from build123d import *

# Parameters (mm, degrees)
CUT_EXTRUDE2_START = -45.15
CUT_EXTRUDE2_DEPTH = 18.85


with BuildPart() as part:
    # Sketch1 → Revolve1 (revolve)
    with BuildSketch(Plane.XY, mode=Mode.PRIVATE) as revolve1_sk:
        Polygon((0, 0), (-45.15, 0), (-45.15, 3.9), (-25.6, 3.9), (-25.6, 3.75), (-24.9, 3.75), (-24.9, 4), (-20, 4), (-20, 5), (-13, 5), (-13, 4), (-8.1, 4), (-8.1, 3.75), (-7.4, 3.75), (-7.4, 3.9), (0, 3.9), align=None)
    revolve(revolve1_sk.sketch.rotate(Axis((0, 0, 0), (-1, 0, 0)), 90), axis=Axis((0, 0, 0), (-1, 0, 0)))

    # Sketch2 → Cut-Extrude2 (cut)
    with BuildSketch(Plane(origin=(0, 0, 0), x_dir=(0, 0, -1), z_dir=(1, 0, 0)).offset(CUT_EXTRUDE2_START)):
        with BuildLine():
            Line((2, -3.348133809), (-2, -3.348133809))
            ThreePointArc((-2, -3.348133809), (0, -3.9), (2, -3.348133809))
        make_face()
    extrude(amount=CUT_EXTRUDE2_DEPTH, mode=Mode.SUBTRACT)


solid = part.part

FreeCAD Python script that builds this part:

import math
import FreeCAD as App
import Part
import Sketcher

V = App.Vector

doc = App.newDocument("Part")
body = doc.addObject("PartDesign::Body", "Body")

# Sketch on XY plane
sketch1 = doc.addObject("Sketcher::SketchObject", "Sketch")
body.addObject(sketch1)
sketch1.AttachmentSupport = (doc.XY_Plane, [""])
sketch1.MapMode = "FlatFace"
sketch1.addGeometry([
    Part.LineSegment(V(-45.15, 0, 0), V(0, 0, 0)),  # 0
    Part.LineSegment(V(0, 0, 0), V(0, 3.9, 0)),  # 1
    Part.LineSegment(V(0, 3.9, 0), V(-7.4, 3.9, 0)),  # 2
    Part.LineSegment(V(-7.4, 3.9, 0), V(-7.4, 3.75, 0)),  # 3
    Part.LineSegment(V(-7.4, 3.75, 0), V(-8.1, 3.75, 0)),  # 4
    Part.LineSegment(V(-8.1, 3.75, 0), V(-8.1, 4, 0)),  # 5
    Part.LineSegment(V(-8.1, 4, 0), V(-13, 4, 0)),  # 6
    Part.LineSegment(V(-13, 4, 0), V(-13, 5, 0)),  # 7
    Part.LineSegment(V(-13, 5, 0), V(-20, 5, 0)),  # 8
    Part.LineSegment(V(-20, 5, 0), V(-20, 4, 0)),  # 9
    Part.LineSegment(V(-20, 4, 0), V(-24.9, 4, 0)),  # 10
    Part.LineSegment(V(-24.9, 4, 0), V(-24.9, 3.75, 0)),  # 11
    Part.LineSegment(V(-24.9, 3.75, 0), V(-25.6, 3.75, 0)),  # 12
    Part.LineSegment(V(-25.6, 3.75, 0), V(-25.6, 3.9, 0)),  # 13
    Part.LineSegment(V(-25.6, 3.9, 0), V(-45.15, 3.9, 0)),  # 14
    Part.LineSegment(V(-45.15, 3.9, 0), V(-45.15, 0, 0)),  # 15
], False)
sketch1.addConstraint([
    Sketcher.Constraint("Coincident", 0, 2, 1, 1),
    Sketcher.Constraint("Coincident", 1, 2, 2, 1),
    Sketcher.Constraint("Coincident", 2, 2, 3, 1),
    Sketcher.Constraint("Coincident", 3, 2, 4, 1),
    Sketcher.Constraint("Coincident", 4, 2, 5, 1),
    Sketcher.Constraint("Coincident", 5, 2, 6, 1),
    Sketcher.Constraint("Coincident", 6, 2, 7, 1),
    Sketcher.Constraint("Coincident", 7, 2, 8, 1),
    Sketcher.Constraint("Coincident", 8, 2, 9, 1),
    Sketcher.Constraint("Coincident", 9, 2, 10, 1),
    Sketcher.Constraint("Coincident", 10, 2, 11, 1),
    Sketcher.Constraint("Coincident", 11, 2, 12, 1),
    Sketcher.Constraint("Coincident", 12, 2, 13, 1),
    Sketcher.Constraint("Coincident", 13, 2, 14, 1),
    Sketcher.Constraint("Coincident", 14, 2, 15, 1),
    Sketcher.Constraint("Coincident", 15, 2, 0, 1),
    Sketcher.Constraint("Horizontal", 0),
    Sketcher.Constraint("Vertical", 1),
    Sketcher.Constraint("Horizontal", 2),
    Sketcher.Constraint("Vertical", 3),
    Sketcher.Constraint("Horizontal", 4),
    Sketcher.Constraint("Vertical", 5),
    Sketcher.Constraint("Horizontal", 6),
    Sketcher.Constraint("Vertical", 7),
    Sketcher.Constraint("Horizontal", 8),
    Sketcher.Constraint("Vertical", 9),
    Sketcher.Constraint("Horizontal", 10),
    Sketcher.Constraint("Vertical", 11),
    Sketcher.Constraint("Horizontal", 12),
    Sketcher.Constraint("Vertical", 13),
    Sketcher.Constraint("Horizontal", 14),
    Sketcher.Constraint("Vertical", 15),
    Sketcher.Constraint("Coincident", 0, 2, -1, 1),
    Sketcher.Constraint("Horizontal", 6, 2, 9, 2),
    Sketcher.Constraint("Horizontal", 4, 2, 11, 2),
    Sketcher.Constraint("Horizontal", 2, 2, 13, 2),
    Sketcher.Constraint("Equal", 6, 10),
    Sketcher.Constraint("Equal", 4, 12),
    Sketcher.Constraint("DistanceX", 8, 2, 8, 1, 7.0),
    Sketcher.Constraint("DistanceY", 7, 1, 7, 2, 1.0),
    Sketcher.Constraint("DistanceX", 2, 2, 2, 1, 7.4),
    Sketcher.Constraint("DistanceX", 4, 2, 4, 1, 0.7),
    Sketcher.Constraint("DistanceX", 6, 2, 6, 1, 4.9),
    Sketcher.Constraint("DistanceY", 1, 1, 1, 2, 3.9),
    Sketcher.Constraint("DistanceY", -1, 1, 5, 2, 4.0),
    Sketcher.Constraint("DistanceX", 0, 1, 0, 2, 45.15),
    Sketcher.Constraint("DistanceY", 3, 2, 3, 1, 0.15),
])
revolution = doc.addObject("PartDesign::Revolution", "Revolution")
body.addObject(revolution)
revolution.Profile = sketch1
revolution.ReferenceAxis = (sketch1, ["H_Axis"])
revolution.Angle = 360

# Sketch on YZ plane
sketch2 = doc.addObject("Sketcher::SketchObject", "Sketch001")
body.addObject(sketch2)
sketch2.AttachmentSupport = (doc.YZ_Plane, [""])
sketch2.MapMode = "FlatFace"
sketch2.AttachmentOffset = App.Placement(V(0, 0, -45.15), App.Rotation())
sketch2.addGeometry([
    Part.LineSegment(V(-3.348134, -2, 0), V(-3.348134, 2, 0)),
    Part.ArcOfCircle(Part.Circle(V(0, 0, 0), V(0, 0, 1), 3.9), math.radians(149.148114), math.radians(210.851886)),
], False)
sketch2.addConstraint([
    Sketcher.Constraint("Coincident", 0, 1, 1, 2),
    Sketcher.Constraint("Coincident", 1, 1, 0, 2),
    Sketcher.Constraint("Vertical", 0),
    Sketcher.Constraint("Coincident", 1, 3, -1, 1),
    Sketcher.Constraint("Radius", 1, 3.9),
    Sketcher.Constraint("DistanceY", 0, 1, 0, 2, 4.0),
])
pocket1 = doc.addObject("PartDesign::Pocket", "Pocket")
body.addObject(pocket1)
pocket1.Profile = sketch2
pocket1.Length = 18.85
pocket1.Reversed = True

doc.recompute()
